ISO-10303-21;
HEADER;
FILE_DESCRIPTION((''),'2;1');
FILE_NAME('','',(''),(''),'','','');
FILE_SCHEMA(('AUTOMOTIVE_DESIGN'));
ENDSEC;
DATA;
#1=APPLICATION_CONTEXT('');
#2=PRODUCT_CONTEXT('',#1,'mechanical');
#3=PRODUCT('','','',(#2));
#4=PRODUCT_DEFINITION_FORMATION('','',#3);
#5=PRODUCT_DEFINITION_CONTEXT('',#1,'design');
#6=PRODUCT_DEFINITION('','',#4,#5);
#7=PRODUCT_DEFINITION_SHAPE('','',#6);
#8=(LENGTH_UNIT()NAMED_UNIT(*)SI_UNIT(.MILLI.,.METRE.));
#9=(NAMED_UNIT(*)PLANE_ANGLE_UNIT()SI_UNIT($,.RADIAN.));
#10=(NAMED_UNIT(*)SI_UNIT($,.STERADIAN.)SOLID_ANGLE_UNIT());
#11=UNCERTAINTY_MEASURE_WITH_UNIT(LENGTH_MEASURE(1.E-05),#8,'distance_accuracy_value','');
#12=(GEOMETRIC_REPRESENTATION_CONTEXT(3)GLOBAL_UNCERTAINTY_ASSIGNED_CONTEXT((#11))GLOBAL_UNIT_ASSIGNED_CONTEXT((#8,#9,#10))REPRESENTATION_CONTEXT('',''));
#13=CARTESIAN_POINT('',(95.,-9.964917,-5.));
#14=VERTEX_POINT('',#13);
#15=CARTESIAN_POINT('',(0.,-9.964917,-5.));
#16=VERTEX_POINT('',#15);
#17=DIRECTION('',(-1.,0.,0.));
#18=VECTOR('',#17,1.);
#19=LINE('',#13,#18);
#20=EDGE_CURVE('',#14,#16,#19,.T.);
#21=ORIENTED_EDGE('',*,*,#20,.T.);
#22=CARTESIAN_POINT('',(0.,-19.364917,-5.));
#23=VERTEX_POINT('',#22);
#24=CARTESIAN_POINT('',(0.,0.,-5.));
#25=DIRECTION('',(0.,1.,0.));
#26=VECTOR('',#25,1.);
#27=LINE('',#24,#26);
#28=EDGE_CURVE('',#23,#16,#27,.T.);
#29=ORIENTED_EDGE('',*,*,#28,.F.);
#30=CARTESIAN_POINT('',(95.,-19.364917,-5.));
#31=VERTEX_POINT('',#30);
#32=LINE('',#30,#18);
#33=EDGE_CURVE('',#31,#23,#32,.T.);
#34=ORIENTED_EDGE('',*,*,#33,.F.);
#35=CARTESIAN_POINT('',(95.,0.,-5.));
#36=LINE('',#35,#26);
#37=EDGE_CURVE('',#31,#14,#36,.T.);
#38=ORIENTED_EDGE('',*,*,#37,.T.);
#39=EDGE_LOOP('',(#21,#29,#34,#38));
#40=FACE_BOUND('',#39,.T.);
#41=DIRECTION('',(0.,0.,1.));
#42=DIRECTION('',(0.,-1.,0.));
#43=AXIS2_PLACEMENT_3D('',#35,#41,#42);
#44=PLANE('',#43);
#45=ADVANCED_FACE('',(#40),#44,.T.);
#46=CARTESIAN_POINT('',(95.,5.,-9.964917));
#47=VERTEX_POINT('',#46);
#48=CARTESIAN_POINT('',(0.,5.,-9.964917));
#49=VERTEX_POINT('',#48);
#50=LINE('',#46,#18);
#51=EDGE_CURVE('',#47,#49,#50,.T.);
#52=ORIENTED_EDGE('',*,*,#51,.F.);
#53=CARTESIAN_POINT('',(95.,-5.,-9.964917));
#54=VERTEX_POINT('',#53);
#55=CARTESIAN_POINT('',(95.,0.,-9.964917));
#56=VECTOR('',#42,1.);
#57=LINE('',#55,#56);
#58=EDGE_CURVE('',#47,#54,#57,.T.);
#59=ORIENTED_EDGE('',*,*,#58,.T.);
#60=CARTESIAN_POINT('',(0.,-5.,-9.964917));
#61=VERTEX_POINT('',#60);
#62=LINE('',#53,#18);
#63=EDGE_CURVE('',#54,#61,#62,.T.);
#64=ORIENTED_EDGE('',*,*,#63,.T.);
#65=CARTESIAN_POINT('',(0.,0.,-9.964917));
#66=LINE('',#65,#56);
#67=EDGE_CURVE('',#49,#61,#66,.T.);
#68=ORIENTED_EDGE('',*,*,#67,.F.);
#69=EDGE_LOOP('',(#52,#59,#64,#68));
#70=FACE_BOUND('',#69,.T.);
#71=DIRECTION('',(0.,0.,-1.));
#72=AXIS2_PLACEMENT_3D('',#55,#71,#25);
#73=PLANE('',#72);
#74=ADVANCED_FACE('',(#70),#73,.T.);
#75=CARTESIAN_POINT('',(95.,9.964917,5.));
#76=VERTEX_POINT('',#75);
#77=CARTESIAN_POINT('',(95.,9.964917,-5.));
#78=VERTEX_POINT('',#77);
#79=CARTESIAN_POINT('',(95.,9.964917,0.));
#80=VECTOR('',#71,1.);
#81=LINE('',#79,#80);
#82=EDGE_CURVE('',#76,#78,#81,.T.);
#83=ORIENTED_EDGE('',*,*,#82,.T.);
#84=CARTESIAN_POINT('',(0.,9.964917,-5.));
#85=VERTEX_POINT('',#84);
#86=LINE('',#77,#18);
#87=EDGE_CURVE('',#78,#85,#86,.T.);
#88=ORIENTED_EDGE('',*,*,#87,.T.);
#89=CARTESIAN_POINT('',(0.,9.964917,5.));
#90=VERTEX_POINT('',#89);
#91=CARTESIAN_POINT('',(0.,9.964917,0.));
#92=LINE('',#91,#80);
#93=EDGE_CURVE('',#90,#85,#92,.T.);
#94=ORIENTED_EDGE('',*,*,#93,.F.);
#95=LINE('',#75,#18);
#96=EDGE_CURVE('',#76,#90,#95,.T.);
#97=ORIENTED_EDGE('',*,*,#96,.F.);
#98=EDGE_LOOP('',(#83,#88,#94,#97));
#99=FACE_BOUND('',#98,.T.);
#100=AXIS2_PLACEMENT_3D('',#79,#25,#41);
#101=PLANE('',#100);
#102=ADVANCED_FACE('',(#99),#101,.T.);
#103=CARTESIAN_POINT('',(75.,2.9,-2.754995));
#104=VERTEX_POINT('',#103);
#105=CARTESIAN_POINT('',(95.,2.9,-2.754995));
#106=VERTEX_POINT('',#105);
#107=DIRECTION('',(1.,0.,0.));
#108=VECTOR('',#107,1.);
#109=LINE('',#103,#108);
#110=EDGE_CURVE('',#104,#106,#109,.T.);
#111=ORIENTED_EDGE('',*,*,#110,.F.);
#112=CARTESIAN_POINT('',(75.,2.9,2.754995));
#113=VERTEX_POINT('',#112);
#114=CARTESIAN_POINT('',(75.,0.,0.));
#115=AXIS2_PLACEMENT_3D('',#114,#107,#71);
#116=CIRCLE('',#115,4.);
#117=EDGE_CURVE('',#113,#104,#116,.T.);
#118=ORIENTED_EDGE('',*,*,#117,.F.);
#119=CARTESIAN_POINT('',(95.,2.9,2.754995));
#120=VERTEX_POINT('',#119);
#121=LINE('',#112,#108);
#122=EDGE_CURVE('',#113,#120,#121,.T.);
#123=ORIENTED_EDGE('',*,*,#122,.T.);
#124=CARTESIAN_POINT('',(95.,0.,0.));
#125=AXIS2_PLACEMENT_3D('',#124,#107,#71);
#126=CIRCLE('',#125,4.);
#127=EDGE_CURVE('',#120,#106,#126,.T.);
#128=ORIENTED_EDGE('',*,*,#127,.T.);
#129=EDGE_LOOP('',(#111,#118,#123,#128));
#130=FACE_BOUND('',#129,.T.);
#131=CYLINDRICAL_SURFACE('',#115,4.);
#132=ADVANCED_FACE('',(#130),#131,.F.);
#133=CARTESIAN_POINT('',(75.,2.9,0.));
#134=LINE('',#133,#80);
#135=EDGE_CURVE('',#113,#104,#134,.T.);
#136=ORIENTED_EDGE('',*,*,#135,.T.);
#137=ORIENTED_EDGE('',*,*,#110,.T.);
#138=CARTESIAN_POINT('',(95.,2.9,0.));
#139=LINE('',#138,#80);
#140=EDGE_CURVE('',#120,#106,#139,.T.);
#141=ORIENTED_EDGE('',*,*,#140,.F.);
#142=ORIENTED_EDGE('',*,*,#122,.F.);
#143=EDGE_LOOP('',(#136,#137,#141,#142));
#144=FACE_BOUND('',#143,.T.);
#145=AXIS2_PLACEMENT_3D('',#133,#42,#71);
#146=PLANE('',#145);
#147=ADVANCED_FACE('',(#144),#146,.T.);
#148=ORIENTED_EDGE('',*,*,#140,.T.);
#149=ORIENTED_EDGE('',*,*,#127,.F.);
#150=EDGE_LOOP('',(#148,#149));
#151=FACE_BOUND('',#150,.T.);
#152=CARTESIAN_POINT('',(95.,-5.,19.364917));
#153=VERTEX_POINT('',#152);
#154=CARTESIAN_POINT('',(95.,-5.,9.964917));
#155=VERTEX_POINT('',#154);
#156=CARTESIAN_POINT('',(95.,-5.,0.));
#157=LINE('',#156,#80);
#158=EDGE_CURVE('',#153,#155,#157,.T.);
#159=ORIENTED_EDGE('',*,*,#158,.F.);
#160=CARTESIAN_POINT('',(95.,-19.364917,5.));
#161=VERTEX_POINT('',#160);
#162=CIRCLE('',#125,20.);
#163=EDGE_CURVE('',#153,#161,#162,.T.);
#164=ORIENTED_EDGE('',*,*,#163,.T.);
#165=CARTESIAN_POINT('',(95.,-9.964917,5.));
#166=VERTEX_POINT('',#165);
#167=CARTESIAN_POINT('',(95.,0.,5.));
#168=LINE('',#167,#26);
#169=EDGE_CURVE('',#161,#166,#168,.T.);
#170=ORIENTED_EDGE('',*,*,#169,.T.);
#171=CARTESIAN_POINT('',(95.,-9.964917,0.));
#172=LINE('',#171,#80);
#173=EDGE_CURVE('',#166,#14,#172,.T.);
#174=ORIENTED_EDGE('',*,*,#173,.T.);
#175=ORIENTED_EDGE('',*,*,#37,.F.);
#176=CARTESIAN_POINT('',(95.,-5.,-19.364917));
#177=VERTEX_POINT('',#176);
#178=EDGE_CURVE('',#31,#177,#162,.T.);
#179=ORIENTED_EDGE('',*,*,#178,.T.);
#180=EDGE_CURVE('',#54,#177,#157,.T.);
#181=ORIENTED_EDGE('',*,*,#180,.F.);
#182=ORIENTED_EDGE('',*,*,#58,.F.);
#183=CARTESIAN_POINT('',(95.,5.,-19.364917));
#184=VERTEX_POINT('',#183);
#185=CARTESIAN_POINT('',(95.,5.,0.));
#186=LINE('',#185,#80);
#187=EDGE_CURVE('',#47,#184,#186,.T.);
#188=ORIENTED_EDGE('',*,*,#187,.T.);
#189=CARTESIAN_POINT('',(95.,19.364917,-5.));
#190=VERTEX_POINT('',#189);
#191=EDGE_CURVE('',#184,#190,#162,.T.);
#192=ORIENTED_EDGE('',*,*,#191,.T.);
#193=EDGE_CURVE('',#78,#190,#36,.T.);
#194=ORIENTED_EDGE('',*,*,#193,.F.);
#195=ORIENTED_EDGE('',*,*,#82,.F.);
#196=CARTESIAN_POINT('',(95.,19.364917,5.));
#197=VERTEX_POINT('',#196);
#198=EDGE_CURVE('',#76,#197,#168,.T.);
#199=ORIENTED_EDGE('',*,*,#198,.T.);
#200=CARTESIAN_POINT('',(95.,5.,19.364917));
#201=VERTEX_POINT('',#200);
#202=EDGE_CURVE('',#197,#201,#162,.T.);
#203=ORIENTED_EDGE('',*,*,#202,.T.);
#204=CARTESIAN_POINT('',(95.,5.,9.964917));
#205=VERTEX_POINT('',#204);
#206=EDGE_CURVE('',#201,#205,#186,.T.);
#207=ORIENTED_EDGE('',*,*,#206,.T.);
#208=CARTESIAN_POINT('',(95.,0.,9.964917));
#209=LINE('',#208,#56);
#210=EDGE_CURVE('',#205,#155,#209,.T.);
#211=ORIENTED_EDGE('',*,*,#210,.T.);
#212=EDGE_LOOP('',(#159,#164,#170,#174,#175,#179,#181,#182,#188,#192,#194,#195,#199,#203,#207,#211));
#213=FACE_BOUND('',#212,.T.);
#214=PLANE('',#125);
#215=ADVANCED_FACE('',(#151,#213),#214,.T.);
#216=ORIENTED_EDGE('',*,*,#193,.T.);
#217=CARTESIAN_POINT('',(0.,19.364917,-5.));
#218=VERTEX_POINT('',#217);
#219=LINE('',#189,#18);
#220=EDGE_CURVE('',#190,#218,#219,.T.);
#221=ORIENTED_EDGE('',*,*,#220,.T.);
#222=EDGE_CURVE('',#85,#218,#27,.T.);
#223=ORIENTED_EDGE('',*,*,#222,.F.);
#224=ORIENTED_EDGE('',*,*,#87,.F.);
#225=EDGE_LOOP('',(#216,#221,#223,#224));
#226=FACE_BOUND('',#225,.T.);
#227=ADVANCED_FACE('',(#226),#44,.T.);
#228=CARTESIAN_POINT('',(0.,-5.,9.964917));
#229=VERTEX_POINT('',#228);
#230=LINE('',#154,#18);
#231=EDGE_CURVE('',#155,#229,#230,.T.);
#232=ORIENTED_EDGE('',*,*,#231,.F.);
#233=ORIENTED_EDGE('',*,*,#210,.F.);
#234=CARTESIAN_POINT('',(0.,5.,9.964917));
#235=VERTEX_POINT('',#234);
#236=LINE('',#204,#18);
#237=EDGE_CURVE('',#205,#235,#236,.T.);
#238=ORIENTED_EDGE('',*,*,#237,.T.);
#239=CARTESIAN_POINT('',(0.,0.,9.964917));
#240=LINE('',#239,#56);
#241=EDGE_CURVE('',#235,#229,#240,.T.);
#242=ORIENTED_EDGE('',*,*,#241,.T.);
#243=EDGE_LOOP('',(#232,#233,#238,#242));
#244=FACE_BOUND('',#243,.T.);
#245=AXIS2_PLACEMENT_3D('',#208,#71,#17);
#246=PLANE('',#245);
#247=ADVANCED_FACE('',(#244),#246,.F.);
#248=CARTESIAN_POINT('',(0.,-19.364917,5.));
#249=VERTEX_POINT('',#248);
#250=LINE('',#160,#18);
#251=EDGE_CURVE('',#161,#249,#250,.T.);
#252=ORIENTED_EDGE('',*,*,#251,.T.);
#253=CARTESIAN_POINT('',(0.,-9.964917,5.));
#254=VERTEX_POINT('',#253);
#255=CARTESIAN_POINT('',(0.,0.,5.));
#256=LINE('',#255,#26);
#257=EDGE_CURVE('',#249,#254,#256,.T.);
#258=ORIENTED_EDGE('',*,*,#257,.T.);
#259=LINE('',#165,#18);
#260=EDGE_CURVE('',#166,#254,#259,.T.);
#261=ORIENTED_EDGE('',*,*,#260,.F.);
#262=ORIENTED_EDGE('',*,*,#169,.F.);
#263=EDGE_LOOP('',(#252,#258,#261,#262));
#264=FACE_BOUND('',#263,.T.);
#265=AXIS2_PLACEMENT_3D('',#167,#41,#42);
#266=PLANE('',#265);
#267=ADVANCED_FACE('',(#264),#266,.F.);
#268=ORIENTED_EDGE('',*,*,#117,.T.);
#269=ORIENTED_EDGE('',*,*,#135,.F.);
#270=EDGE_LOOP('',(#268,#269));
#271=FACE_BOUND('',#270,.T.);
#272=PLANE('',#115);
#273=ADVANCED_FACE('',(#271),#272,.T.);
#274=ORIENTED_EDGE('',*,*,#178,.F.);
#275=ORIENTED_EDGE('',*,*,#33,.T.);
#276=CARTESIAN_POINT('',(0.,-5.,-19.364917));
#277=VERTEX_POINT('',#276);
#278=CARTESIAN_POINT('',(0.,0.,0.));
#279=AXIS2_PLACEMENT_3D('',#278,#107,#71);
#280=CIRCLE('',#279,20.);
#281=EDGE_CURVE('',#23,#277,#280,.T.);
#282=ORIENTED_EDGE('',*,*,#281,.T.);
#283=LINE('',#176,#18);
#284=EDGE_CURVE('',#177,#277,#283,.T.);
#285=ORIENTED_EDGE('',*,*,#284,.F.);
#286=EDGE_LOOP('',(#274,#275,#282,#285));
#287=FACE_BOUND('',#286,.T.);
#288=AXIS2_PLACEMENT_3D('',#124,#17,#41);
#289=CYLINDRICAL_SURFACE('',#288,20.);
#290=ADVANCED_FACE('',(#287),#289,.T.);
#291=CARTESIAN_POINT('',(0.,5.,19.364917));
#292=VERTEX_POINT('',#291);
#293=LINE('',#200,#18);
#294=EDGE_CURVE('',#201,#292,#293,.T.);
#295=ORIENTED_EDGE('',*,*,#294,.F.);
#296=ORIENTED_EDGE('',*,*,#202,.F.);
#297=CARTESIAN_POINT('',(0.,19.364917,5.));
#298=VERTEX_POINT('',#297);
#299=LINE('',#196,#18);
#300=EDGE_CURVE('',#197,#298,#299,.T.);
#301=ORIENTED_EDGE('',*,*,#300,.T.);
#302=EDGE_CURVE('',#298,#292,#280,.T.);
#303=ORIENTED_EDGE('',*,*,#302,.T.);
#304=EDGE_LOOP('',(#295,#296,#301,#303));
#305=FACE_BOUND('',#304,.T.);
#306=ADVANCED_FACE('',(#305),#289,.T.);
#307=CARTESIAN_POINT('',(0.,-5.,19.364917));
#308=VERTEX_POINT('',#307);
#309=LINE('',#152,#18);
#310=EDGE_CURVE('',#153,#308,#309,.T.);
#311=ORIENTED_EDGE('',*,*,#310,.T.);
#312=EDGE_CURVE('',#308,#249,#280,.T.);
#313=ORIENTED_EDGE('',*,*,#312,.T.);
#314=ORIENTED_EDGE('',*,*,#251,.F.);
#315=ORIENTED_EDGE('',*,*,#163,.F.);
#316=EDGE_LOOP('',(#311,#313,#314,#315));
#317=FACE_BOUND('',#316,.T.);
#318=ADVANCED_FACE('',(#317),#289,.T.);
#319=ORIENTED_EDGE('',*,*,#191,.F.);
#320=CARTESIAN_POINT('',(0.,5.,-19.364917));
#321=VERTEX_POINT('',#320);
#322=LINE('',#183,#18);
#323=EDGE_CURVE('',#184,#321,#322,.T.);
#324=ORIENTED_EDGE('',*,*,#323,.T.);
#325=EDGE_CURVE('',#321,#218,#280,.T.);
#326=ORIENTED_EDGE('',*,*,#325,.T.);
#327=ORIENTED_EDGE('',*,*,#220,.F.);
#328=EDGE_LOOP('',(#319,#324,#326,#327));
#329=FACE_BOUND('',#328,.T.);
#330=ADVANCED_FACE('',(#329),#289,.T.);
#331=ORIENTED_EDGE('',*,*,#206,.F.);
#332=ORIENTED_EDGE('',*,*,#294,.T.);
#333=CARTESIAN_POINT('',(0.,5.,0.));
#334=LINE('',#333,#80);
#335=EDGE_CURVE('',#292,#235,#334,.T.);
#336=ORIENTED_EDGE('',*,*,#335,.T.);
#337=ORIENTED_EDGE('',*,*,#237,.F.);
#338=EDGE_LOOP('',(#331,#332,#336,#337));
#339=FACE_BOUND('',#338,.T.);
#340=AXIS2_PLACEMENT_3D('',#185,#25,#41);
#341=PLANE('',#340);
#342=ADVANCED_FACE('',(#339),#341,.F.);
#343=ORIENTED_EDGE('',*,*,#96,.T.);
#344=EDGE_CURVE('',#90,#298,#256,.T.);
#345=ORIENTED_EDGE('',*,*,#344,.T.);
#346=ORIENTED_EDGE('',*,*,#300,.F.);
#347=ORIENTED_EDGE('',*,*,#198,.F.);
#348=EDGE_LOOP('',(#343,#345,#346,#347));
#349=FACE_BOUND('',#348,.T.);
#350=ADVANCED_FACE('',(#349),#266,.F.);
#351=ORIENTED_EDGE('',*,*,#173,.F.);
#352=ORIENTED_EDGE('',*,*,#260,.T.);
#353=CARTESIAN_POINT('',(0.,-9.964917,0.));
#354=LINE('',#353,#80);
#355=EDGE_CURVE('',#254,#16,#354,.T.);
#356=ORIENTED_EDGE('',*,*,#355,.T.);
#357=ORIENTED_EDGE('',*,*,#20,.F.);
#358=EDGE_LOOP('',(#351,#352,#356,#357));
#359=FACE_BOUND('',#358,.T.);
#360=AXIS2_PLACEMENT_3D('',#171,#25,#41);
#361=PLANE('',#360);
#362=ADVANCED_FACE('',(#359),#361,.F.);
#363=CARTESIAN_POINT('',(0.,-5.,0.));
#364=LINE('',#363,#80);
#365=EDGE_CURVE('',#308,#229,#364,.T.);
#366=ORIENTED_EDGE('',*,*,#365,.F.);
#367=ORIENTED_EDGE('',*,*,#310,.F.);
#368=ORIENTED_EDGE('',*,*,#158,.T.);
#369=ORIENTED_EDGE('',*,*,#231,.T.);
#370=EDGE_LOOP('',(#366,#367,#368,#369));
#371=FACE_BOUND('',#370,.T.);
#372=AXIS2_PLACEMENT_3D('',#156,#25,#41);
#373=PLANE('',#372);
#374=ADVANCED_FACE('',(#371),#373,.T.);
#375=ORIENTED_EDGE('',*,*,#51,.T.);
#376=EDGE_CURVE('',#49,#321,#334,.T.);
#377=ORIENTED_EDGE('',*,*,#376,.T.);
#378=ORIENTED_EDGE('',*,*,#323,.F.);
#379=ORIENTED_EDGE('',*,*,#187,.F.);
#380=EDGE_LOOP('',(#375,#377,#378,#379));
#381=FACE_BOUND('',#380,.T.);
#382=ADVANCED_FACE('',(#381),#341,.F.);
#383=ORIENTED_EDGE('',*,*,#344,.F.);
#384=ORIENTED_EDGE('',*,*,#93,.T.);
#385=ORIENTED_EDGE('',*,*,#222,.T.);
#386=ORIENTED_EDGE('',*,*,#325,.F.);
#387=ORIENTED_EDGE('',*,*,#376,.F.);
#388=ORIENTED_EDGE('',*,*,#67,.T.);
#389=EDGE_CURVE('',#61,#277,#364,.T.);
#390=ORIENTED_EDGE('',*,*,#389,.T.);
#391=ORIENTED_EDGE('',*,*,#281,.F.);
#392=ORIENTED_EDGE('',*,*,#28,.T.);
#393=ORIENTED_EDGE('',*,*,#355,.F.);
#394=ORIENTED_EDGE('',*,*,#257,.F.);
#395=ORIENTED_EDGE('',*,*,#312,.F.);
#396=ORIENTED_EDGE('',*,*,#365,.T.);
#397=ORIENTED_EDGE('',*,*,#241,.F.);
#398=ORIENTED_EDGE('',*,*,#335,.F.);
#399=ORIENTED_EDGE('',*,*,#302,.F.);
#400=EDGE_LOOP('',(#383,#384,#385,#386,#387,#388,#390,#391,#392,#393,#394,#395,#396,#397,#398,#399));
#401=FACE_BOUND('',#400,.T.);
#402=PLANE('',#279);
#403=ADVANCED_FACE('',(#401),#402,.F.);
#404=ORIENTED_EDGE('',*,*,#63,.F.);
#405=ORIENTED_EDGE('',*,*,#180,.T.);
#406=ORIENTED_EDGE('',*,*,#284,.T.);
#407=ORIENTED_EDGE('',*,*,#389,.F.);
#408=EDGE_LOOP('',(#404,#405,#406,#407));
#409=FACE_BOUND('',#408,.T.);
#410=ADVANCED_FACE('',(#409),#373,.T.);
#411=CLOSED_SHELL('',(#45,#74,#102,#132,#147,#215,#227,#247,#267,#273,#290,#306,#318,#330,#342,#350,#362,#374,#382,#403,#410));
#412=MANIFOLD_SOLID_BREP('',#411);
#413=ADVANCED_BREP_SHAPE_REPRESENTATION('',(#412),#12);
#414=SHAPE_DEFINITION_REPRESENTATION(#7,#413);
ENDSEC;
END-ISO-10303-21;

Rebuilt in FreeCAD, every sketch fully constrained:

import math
import FreeCAD as App
import Part
import Sketcher

V = App.Vector

doc = App.newDocument("Part")
body = doc.addObject("PartDesign::Body", "Body")

sketch1 = doc.addObject("Sketcher::SketchObject", "Sketch")
body.addObject(sketch1)
sketch1.AttachmentSupport = (doc.YZ_Plane, [""])
sketch1.MapMode = "FlatFace"
sketch1.addGeometry([
    Part.ArcOfCircle(Part.Circle(V(0, 0, 0), V(0, 0, 1), 20), math.radians(104), math.radians(166)),
    Part.LineSegment(V(-19, 5, 0), V(-10, 5, 0)),
    Part.LineSegment(V(-10, 5, 0), V(-10, -5, 0)),
    Part.LineSegment(V(-10, -5, 0), V(-19, -5, 0)),
    Part.ArcOfCircle(Part.Circle(V(0, 0, 0), V(0, 0, 1), 20), math.radians(-166), math.radians(-104)),
    Part.LineSegment(V(-5, -19, 0), V(-5, -10, 0)),
    Part.LineSegment(V(-5, -10, 0), V(5, -10, 0)),
    Part.LineSegment(V(5, -10, 0), V(5, -19, 0)),
    Part.ArcOfCircle(Part.Circle(V(0, 0, 0), V(0, 0, 1), 20), math.radians(-76), math.radians(-14)),
    Part.LineSegment(V(19, -5, 0), V(10, -5, 0)),
    Part.LineSegment(V(10, -5, 0), V(10, 5, 0)),
    Part.LineSegment(V(10, 5, 0), V(19, 5, 0)),
    Part.ArcOfCircle(Part.Circle(V(0, 0, 0), V(0, 0, 1), 20), math.radians(14), math.radians(76)),
    Part.LineSegment(V(5, 19, 0), V(5, 10, 0)),
    Part.LineSegment(V(5, 10, 0), V(-5, 10, 0)),
    Part.LineSegment(V(-5, 10, 0), V(-5, 19, 0)),
], False)
sketch1.addConstraint([
    Sketcher.Constraint("Coincident", 0, 2, 1, 1),
    Sketcher.Constraint("Coincident", 1, 2, 2, 1),
    Sketcher.Constraint("Coincident", 2, 2, 3, 1),
    Sketcher.Constraint("Coincident", 3, 2, 4, 1),
    Sketcher.Constraint("Coincident", 4, 2, 5, 1),
    Sketcher.Constraint("Coincident", 5, 2, 6, 1),
    Sketcher.Constraint("Coincident", 6, 2, 7, 1),
    Sketcher.Constraint("Coincident", 7, 2, 8, 1),
    Sketcher.Constraint("Coincident", 8, 2, 9, 1),
    Sketcher.Constraint("Coincident", 9, 2, 10, 1),
    Sketcher.Constraint("Coincident", 10, 2, 11, 1),
    Sketcher.Constraint("Coincident", 11, 2, 12, 1),
    Sketcher.Constraint("Coincident", 12, 2, 13, 1),
    Sketcher.Constraint("Coincident", 13, 2, 14, 1),
    Sketcher.Constraint("Coincident", 14, 2, 15, 1),
    Sketcher.Constraint("Coincident", 15, 2, 0, 1),
    Sketcher.Constraint("Horizontal", 1),
    Sketcher.Constraint("Vertical", 2),
    Sketcher.Constraint("Horizontal", 3),
    Sketcher.Constraint("Vertical", 5),
    Sketcher.Constraint("Horizontal", 6),
    Sketcher.Constraint("Vertical", 7),
    Sketcher.Constraint("Horizontal", 9),
    Sketcher.Constraint("Vertical", 10),
    Sketcher.Constraint("Horizontal", 11),
    Sketcher.Constraint("Vertical", 13),
    Sketcher.Constraint("Horizontal", 14),
    Sketcher.Constraint("Vertical", 15),
    Sketcher.Constraint("Coincident", 0, 3, -1, 1),
    Sketcher.Constraint("Coincident", 4, 3, -1, 1),
    Sketcher.Constraint("Coincident", 8, 3, -1, 1),
    Sketcher.Constraint("Coincident", 12, 3, -1, 1),
    Sketcher.Constraint("Equal", 0, 4),
    Sketcher.Constraint("Equal", 4, 8),
    Sketcher.Constraint("Equal", 8, 12),
    Sketcher.Constraint("Symmetric", 1, 2, 9, 2, -1, 1),
    Sketcher.Constraint("Symmetric", 5, 2, 13, 2, -1, 1),
    Sketcher.Constraint("Horizontal", 4, 2, 7, 2),
    Sketcher.Constraint("Horizontal", 3, 2, 8, 2),
    Sketcher.Constraint("Horizontal", 1, 2, 10, 2),
    Sketcher.Constraint("Horizontal", 12, 2, 15, 2),
    Sketcher.Constraint("Equal", 14, 2),
    Sketcher.Constraint("Equal", 11, 5),
    Sketcher.Constraint("Radius", 0, 20.0),
    Sketcher.Constraint("DistanceX", 6, 1, 6, 2, 10.0),
    Sketcher.Constraint("DistanceX", 1, 1, 1, 2, 9.4),
])
pad1 = doc.addObject("PartDesign::Pad", "Pad")
body.addObject(pad1)
pad1.Profile = sketch1
pad1.Length = 95

sketch2 = doc.addObject("Sketcher::SketchObject", "Sketch001")
body.addObject(sketch2)
sketch2.AttachmentSupport = (doc.YZ_Plane, [""])
sketch2.MapMode = "FlatFace"
sketch2.AttachmentOffset = App.Placement(V(0, 0, 95), App.Rotation())
sketch2.addGeometry([
    Part.LineSegment(V(2.9, -2.8, 0), V(2.9, 2.8, 0)),
    Part.ArcOfCircle(Part.Circle(V(0, 0, 0), V(0, 0, 1), 4), math.radians(44), math.radians(270)),
    Part.ArcOfCircle(Part.Circle(V(0, 0, 0), V(0, 0, 1), 4), math.radians(-90), math.radians(-44)),
], False)
sketch2.addConstraint([
    Sketcher.Constraint("Coincident", 0, 2, 1, 1),
    Sketcher.Constraint("Tangent", 1, 2, 2, 1),
    Sketcher.Constraint("Coincident", 2, 2, 0, 1),
    Sketcher.Constraint("Vertical", 0),
    Sketcher.Constraint("Coincident", 1, 3, -1, 1),
    Sketcher.Constraint("Equal", 1, 2),
    Sketcher.Constraint("PointOnObject", 1, 2, -2),
    Sketcher.Constraint("Radius", 1, 4.0),
    Sketcher.Constraint("DistanceX", -1, 1, 0, 2, 2.9),
])
pocket1 = doc.addObject("PartDesign::Pocket", "Pocket")
body.addObject(pocket1)
pocket1.Profile = sketch2
pocket1.Length = 20

doc.recompute()
